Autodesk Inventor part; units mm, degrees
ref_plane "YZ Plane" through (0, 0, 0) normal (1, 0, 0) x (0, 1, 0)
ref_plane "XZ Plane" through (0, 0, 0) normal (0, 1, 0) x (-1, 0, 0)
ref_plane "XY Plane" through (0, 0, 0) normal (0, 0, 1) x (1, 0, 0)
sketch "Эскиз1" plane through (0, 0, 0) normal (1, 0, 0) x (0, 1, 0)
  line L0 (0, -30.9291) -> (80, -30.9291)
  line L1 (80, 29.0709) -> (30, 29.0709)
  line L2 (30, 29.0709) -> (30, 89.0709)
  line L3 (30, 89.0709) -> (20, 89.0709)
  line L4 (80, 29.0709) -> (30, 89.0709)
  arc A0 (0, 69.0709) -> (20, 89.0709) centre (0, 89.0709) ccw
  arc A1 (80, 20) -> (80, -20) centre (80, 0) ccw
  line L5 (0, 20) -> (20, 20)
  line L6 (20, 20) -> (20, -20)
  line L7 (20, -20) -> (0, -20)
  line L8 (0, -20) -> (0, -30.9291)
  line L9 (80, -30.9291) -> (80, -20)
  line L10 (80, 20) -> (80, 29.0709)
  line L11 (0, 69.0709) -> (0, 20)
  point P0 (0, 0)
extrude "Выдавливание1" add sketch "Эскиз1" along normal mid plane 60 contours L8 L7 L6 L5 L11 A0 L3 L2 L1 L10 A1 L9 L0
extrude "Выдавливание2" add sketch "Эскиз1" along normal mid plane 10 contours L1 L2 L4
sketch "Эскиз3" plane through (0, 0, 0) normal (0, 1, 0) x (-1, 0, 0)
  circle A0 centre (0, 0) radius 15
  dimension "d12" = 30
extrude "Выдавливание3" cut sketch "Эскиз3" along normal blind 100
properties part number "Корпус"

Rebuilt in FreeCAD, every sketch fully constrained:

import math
import FreeCAD as App
import Part
import Sketcher

doc = App.newDocument("Part")
body = doc.addObject("PartDesign::Body", "Body")

sketch1 = body.newObject("Sketcher::SketchObject", "Sketch")
sketch1.AttachmentSupport = (doc.getObject("YZ_Plane"), [""])
sketch1.MapMode = "FlatFace"
sketch1.addGeometry(Part.LineSegment(App.Vector(0, -20, 0), App.Vector(0, -31, 0)), False)
sketch1.addGeometry(Part.LineSegment(App.Vector(0, -31, 0), App.Vector(80, -31, 0)), False)
sketch1.addGeometry(Part.LineSegment(App.Vector(80, -31, 0), App.Vector(80, -20, 0)), False)
sketch1.addGeometry(Part.ArcOfCircle(Part.Circle(App.Vector(80, 0, 0), App.Vector(0, 0, 1), 20), math.radians(90), math.radians(270)), False)
sketch1.addGeometry(Part.LineSegment(App.Vector(80, 20, 0), App.Vector(80, 29, 0)), False)
sketch1.addGeometry(Part.LineSegment(App.Vector(80, 29, 0), App.Vector(30, 29, 0)), False)
sketch1.addGeometry(Part.LineSegment(App.Vector(30, 29, 0), App.Vector(30, 89, 0)), False)
sketch1.addGeometry(Part.LineSegment(App.Vector(30, 89, 0), App.Vector(20, 89, 0)), False)
sketch1.addGeometry(Part.ArcOfCircle(Part.Circle(App.Vector(0, 89, 0), App.Vector(0, 0, 1), 20), math.radians(-90), math.radians(0)), False)
sketch1.addGeometry(Part.LineSegment(App.Vector(0, 69, 0), App.Vector(0, 20, 0)), False)
sketch1.addGeometry(Part.LineSegment(App.Vector(0, 20, 0), App.Vector(20, 20, 0)), False)
sketch1.addGeometry(Part.LineSegment(App.Vector(20, 20, 0), App.Vector(20, -20, 0)), False)
sketch1.addGeometry(Part.LineSegment(App.Vector(20, -20, 0), App.Vector(0, -20, 0)), False)
sketch1.addConstraint(Sketcher.Constraint("Coincident", 0, 2, 1, 1))
sketch1.addConstraint(Sketcher.Constraint("Coincident", 1, 2, 2, 1))
sketch1.addConstraint(Sketcher.Constraint("Coincident", 2, 2, 3, 2))
sketch1.addConstraint(Sketcher.Constraint("Coincident", 3, 1, 4, 1))
sketch1.addConstraint(Sketcher.Constraint("Coincident", 4, 2, 5, 1))
sketch1.addConstraint(Sketcher.Constraint("Coincident", 5, 2, 6, 1))
sketch1.addConstraint(Sketcher.Constraint("Coincident", 6, 2, 7, 1))
sketch1.addConstraint(Sketcher.Constraint("Coincident", 7, 2, 8, 2))
sketch1.addConstraint(Sketcher.Constraint("Coincident", 8, 1, 9, 1))
sketch1.addConstraint(Sketcher.Constraint("Coincident", 9, 2, 10, 1))
sketch1.addConstraint(Sketcher.Constraint("Coincident", 10, 2, 11, 1))
sketch1.addConstraint(Sketcher.Constraint("Coincident", 11, 2, 12, 1))
sketch1.addConstraint(Sketcher.Constraint("Coincident", 12, 2, 0, 1))
sketch1.addConstraint(Sketcher.Constraint("Vertical", 0))
sketch1.addConstraint(Sketcher.Constraint("Horizontal", 1))
sketch1.addConstraint(Sketcher.Constraint("Vertical", 2))
sketch1.addConstraint(Sketcher.Constraint("Vertical", 4))
sketch1.addConstraint(Sketcher.Constraint("Horizontal", 5))
sketch1.addConstraint(Sketcher.Constraint("Vertical", 6))
sketch1.addConstraint(Sketcher.Constraint("Horizontal", 7))
sketch1.addConstraint(Sketcher.Constraint("Vertical", 9))
sketch1.addConstraint(Sketcher.Constraint("Horizontal", 10))
sketch1.addConstraint(Sketcher.Constraint("Vertical", 11))
sketch1.addConstraint(Sketcher.Constraint("Horizontal", 12))
sketch1.addConstraint(Sketcher.Constraint("Equal", 3, 8))
sketch1.addConstraint(Sketcher.Constraint("Symmetric", 9, 2, 12, 2, -1, 1))
sketch1.addConstraint(Sketcher.Constraint("Symmetric", 2, 2, 3, 1, -1))
sketch1.addConstraint(Sketcher.Constraint("PointOnObject", 8, 3, -2))
sketch1.addConstraint(Sketcher.Constraint("PointOnObject", 0, 2, -2))
sketch1.addConstraint(Sketcher.Constraint("Horizontal", 8, 3, 6, 2))
sketch1.addConstraint(Sketcher.Constraint("Horizontal", 3, 1, 9, 2))
sketch1.addConstraint(Sketcher.Constraint("Vertical", 3, 3, 1, 2))
sketch1.addConstraint(Sketcher.Constraint("Vertical", 7, 2, 10, 2))
sketch1.addConstraint(Sketcher.Constraint("Radius", 3, 20.0))
sketch1.addConstraint(Sketcher.Constraint("DistanceX", 1, 1, 1, 2, 80.0))
sketch1.addConstraint(Sketcher.Constraint("DistanceX", 5, 2, 5, 1, 50.0))
sketch1.addConstraint(Sketcher.Constraint("DistanceY", 6, 1, 6, 2, 60.0))
sketch1.addConstraint(Sketcher.Constraint("DistanceY", 0, 2, 8, 3, 120.0))
sketch1.addConstraint(Sketcher.Constraint("DistanceY", 0, 2, 0, 1, 10.929))
pad1 = body.newObject("PartDesign::Pad", "Pad")
pad1.Profile = sketch1
pad1.Length = 60
pad1.Midplane = True

sketch2 = body.newObject("Sketcher::SketchObject", "Sketch001")
sketch2.AttachmentSupport = (doc.getObject("YZ_Plane"), [""])
sketch2.MapMode = "FlatFace"
sketch2.addGeometry(Part.LineSegment(App.Vector(30, 29, 0), App.Vector(80, 29, 0)), False)
sketch2.addGeometry(Part.LineSegment(App.Vector(80, 29, 0), App.Vector(30, 89, 0)), False)
sketch2.addGeometry(Part.LineSegment(App.Vector(30, 89, 0), App.Vector(30, 29, 0)), False)
sketch2.addConstraint(Sketcher.Constraint("Coincident", 0, 2, 1, 1))
sketch2.addConstraint(Sketcher.Constraint("Coincident", 1, 2, 2, 1))
sketch2.addConstraint(Sketcher.Constraint("Coincident", 2, 2, 0, 1))
sketch2.addConstraint(Sketcher.Constraint("Horizontal", 0))
sketch2.addConstraint(Sketcher.Constraint("Vertical", 2))
sketch2.addConstraint(Sketcher.Constraint("DistanceX", 0, 1, 0, 2, 50.0))
sketch2.addConstraint(Sketcher.Constraint("DistanceY", 2, 2, 2, 1, 60.0))
sketch2.addConstraint(Sketcher.Constraint("DistanceX", -1, 1, 0, 2, 80.0))
sketch2.addConstraint(Sketcher.Constraint("DistanceY", -1, 1, 0, 2, 29.071))
pad2 = body.newObject("PartDesign::Pad", "Pad001")
pad2.Profile = sketch2
pad2.Length = 10
pad2.Midplane = True

sketch3 = body.newObject("Sketcher::SketchObject", "Sketch002")
sketch3.AttachmentSupport = (doc.getObject("XZ_Plane"), [""])
sketch3.MapMode = "FlatFace"
sketch3.addGeometry(Part.Circle(App.Vector(0, 0, 0), App.Vector(0, 0, 1), 15), False)
sketch3.addConstraint(Sketcher.Constraint("Coincident", 0, 3, -1, 1))
sketch3.addConstraint(Sketcher.Constraint("Diameter", 0, 30.0))
pocket1 = body.newObject("PartDesign::Pocket", "Pocket")
pocket1.Profile = sketch3
pocket1.Length = 100

doc.recompute()
